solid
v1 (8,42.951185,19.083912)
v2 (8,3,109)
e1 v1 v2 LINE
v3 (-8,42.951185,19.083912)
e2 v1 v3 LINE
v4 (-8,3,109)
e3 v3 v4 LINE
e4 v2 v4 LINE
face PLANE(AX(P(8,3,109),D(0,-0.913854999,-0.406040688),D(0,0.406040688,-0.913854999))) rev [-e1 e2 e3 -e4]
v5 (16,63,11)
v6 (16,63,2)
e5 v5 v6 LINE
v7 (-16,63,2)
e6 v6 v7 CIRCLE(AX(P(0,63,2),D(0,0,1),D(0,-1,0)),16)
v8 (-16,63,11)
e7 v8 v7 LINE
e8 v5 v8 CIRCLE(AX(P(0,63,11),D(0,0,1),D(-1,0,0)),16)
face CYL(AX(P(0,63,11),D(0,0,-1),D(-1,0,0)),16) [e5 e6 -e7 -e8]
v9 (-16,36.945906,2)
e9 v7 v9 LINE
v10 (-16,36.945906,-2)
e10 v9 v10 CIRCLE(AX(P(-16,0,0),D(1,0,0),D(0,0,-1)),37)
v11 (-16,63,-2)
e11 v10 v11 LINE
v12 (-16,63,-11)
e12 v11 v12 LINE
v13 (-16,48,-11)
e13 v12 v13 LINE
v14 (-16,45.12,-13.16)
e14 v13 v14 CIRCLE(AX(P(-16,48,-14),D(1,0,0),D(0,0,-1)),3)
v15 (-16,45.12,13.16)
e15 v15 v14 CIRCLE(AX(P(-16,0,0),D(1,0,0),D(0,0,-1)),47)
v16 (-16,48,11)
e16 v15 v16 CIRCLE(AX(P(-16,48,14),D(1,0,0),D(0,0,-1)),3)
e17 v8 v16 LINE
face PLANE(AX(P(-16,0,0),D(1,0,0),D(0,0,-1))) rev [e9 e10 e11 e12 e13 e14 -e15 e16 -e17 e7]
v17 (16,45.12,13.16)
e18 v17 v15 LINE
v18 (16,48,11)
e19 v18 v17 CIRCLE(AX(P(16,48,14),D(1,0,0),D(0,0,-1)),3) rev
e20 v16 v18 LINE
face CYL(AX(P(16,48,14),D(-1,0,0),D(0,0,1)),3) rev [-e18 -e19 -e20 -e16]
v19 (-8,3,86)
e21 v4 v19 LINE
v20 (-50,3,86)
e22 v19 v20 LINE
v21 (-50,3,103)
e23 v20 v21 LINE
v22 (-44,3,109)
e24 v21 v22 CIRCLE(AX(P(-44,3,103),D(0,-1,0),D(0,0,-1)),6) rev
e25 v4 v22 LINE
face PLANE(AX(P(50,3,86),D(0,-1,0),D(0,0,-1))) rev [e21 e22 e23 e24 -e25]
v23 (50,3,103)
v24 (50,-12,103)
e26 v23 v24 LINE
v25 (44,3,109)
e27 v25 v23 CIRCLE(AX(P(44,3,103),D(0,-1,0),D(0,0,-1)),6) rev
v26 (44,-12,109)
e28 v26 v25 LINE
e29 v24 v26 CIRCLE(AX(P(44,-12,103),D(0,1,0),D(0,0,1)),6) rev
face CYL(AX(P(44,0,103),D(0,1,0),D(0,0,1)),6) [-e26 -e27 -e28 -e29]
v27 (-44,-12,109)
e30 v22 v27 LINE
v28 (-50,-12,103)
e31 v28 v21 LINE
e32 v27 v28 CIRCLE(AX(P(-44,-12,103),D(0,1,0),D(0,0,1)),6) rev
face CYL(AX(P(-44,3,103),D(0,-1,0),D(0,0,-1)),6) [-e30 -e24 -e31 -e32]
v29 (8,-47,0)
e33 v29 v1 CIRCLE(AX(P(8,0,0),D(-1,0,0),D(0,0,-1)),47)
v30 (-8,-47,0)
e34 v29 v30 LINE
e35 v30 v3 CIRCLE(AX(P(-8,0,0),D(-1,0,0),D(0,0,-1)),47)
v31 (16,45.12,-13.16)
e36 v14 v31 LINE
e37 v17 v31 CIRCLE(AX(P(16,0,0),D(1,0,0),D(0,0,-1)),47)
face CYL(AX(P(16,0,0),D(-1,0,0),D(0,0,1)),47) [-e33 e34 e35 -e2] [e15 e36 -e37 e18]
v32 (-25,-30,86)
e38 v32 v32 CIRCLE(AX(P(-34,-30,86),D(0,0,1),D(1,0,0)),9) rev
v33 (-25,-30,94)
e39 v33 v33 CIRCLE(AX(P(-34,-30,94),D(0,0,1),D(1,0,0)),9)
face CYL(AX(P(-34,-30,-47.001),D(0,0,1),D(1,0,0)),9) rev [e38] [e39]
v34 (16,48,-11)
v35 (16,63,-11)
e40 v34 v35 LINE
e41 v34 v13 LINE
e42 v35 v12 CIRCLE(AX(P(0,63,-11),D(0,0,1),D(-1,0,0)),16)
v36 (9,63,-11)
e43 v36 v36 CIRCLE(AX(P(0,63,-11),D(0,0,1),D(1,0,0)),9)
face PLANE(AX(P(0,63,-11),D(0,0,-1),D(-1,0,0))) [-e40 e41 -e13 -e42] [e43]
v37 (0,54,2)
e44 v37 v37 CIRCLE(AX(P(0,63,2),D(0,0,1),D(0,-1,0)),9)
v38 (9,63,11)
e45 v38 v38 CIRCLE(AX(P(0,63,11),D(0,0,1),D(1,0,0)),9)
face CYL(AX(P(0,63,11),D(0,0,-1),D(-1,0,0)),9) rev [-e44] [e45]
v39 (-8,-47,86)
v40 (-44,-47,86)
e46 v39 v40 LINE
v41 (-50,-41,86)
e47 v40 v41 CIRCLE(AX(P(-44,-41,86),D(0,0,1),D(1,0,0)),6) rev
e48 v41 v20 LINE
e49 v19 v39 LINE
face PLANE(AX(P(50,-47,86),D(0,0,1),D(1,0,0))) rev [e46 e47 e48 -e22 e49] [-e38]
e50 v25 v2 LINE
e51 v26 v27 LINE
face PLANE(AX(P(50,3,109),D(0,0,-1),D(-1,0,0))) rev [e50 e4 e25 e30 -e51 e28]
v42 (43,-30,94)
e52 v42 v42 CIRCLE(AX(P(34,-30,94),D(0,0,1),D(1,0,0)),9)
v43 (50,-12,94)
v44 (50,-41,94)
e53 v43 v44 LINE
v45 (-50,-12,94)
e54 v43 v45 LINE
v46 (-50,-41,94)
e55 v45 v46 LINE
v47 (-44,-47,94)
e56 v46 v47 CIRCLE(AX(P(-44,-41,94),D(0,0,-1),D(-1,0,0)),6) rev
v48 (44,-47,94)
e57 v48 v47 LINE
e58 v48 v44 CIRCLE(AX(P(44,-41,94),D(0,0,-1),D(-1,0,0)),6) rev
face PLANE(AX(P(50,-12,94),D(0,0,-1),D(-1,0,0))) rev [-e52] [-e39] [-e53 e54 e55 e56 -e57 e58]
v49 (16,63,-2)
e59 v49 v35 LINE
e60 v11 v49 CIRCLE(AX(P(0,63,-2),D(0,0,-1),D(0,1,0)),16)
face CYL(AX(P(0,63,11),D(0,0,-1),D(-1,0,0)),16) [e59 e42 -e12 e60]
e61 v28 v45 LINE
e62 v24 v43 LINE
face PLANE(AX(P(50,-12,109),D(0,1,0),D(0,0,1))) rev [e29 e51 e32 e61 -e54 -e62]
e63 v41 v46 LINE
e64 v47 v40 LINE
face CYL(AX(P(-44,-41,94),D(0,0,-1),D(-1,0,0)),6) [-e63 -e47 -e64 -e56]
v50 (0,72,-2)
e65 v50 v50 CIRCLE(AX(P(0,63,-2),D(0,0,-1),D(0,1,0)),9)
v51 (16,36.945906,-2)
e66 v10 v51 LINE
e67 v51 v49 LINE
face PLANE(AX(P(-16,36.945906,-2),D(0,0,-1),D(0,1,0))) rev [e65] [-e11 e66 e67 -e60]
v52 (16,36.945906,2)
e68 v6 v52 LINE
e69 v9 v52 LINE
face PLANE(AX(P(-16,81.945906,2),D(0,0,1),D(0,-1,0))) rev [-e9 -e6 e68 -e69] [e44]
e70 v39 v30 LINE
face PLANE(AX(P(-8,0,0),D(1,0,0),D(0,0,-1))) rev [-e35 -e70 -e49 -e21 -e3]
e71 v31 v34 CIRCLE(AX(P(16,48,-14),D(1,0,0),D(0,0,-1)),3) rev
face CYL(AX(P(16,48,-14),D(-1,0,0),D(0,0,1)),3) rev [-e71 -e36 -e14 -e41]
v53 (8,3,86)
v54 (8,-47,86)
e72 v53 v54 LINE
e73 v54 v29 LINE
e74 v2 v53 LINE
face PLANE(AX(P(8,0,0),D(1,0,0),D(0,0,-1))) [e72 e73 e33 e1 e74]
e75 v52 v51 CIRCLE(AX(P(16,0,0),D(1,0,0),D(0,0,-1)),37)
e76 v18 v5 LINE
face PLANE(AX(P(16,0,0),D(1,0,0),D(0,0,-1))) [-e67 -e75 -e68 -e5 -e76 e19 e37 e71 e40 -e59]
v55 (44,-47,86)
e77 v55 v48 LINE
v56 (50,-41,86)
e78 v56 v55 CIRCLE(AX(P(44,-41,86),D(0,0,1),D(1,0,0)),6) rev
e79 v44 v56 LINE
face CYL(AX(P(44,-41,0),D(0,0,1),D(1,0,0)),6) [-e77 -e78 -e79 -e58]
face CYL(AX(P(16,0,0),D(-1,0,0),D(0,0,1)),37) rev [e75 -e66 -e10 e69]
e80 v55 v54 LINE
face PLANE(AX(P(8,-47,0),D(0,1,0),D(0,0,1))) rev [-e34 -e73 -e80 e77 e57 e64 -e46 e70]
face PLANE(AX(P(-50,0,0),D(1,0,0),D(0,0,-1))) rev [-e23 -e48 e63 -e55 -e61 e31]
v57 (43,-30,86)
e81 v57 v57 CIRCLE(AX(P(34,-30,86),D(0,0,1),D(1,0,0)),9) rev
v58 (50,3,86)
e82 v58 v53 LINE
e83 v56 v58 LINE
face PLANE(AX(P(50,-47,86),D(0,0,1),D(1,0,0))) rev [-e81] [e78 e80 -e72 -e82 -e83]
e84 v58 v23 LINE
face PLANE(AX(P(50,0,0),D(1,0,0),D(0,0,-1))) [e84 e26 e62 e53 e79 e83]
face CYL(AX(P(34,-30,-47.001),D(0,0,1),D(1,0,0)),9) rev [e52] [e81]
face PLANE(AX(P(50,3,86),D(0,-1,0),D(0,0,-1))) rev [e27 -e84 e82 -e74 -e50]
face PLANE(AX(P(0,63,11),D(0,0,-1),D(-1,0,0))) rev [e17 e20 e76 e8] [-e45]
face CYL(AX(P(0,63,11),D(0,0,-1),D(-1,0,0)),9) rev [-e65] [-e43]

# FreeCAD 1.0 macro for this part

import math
import FreeCAD as App
import Part
import Sketcher
from FreeCAD import Vector
Q = App.Units.Quantity


def edges_at(feature, points):
    """Names of the edges that pass closest to the given points."""
    edges = feature.Shape.Edges
    near = lambda p: min(range(len(edges)), key=lambda i: edges[i].distToShape(Part.Vertex(*p))[0])
    return sorted({f"Edge{near(p) + 1}" for p in points})

doc = App.newDocument("Part")
body = doc.addObject("PartDesign::Body", "Body")

# Sketch on YZ plane
sketch1 = doc.addObject("Sketcher::SketchObject", "Sketch")
body.addObject(sketch1)
sketch1.AttachmentSupport = (doc.YZ_Plane, [""])
sketch1.MapMode = "FlatFace"
sketch1.addGeometry(Part.Circle(Vector(0, 0, 0), Vector(0, 0, 1), 47), False)
sketch1.addGeometry(Part.Circle(Vector(0, 0, 0), Vector(0, 0, 1), 37), False)
sketch1.addConstraint(Sketcher.Constraint("Coincident", 0, 3, -1, 1))
sketch1.addConstraint(Sketcher.Constraint("Coincident", 1, 3, -1, 1))
sketch1.addConstraint(Sketcher.Constraint("Diameter", 0, Q("94 mm")))
sketch1.addConstraint(Sketcher.Constraint("Diameter", 1, Q("74 mm")))
pad1 = doc.addObject("PartDesign::Pad", "Pad")
body.addObject(pad1)
pad1.Profile = sketch1
pad1.Length = 32
pad1.Midplane = True

# Sketch on XY plane
sketch2 = doc.addObject("Sketcher::SketchObject", "Sketch001")
body.addObject(sketch2)
sketch2.AttachmentSupport = (doc.XY_Plane, [""])
sketch2.MapMode = "FlatFace"
sketch2.addGeometry(Part.LineSegment(Vector(-16, 37, 0), Vector(16, 37, 0)), False)
sketch2.addGeometry(Part.LineSegment(Vector(16, 37, 0), Vector(16, 63, 0)), False)
sketch2.addGeometry(Part.ArcOfCircle(Part.Circle(Vector(0, 63, 0), Vector(0, 0, 1), 16), math.radians(0), math.radians(180)), False)
sketch2.addGeometry(Part.LineSegment(Vector(-16, 63, 0), Vector(-16, 37, 0)), False)
sketch2.addGeometry(Part.Circle(Vector(0, 63, 0), Vector(0, 0, 1), 9), False)
sketch2.addConstraint(Sketcher.Constraint("Coincident", 0, 2, 1, 1))
sketch2.addConstraint(Sketcher.Constraint("Tangent", 1, 2, 2, 1))
sketch2.addConstraint(Sketcher.Constraint("Tangent", 2, 2, 3, 1))
sketch2.addConstraint(Sketcher.Constraint("Coincident", 3, 2, 0, 1))
sketch2.addConstraint(Sketcher.Constraint("Horizontal", 0))
sketch2.addConstraint(Sketcher.Constraint("Vertical", 1))
sketch2.addConstraint(Sketcher.Constraint("Vertical", 3))
sketch2.addConstraint(Sketcher.Constraint("Coincident", 4, 3, 2, 3))
sketch2.addConstraint(Sketcher.Constraint("PointOnObject", 2, 3, -2))
sketch2.addConstraint(Sketcher.Constraint("Diameter", 4, Q("18 mm")))
sketch2.addConstraint(Sketcher.Constraint("Radius", 2, Q("16 mm")))
sketch2.addConstraint(Sketcher.Constraint("DistanceY", 1, 1, 1, 2, Q("26 mm")))
sketch2.addConstraint(Sketcher.Constraint("DistanceY", -1, 1, 2, 3, Q("63 mm")))
pad2 = doc.addObject("PartDesign::Pad", "Pad001")
body.addObject(pad2)
pad2.Profile = sketch2
pad2.Length = 22
pad2.Midplane = True

# Sketch on YZ plane
sketch3 = doc.addObject("Sketcher::SketchObject", "Sketch002")
body.addObject(sketch3)
sketch3.AttachmentSupport = (doc.YZ_Plane, [""])
sketch3.MapMode = "FlatFace"
sketch3.addGeometry(Part.LineSegment(Vector(81.945906, 2, 0), Vector(36.945906, 2, 0)), False)
sketch3.addGeometry(Part.LineSegment(Vector(36.945906, 2, 0), Vector(36.945906, -2, 0)), False)
sketch3.addGeometry(Part.LineSegment(Vector(36.945906, -2, 0), Vector(81.945906, -2, 0)), False)
sketch3.addGeometry(Part.LineSegment(Vector(81.945906, -2, 0), Vector(81.945906, 2, 0)), False)
sketch3.addConstraint(Sketcher.Constraint("Coincident", 0, 2, 1, 1))
sketch3.addConstraint(Sketcher.Constraint("Coincident", 1, 2, 2, 1))
sketch3.addConstraint(Sketcher.Constraint("Coincident", 2, 2, 3, 1))
sketch3.addConstraint(Sketcher.Constraint("Coincident", 3, 2, 0, 1))
sketch3.addConstraint(Sketcher.Constraint("Horizontal", 0))
sketch3.addConstraint(Sketcher.Constraint("Vertical", 1))
sketch3.addConstraint(Sketcher.Constraint("Horizontal", 2))
sketch3.addConstraint(Sketcher.Constraint("Vertical", 3))
sketch3.addConstraint(Sketcher.Constraint("DistanceX", 0, 2, 0, 1, Q("45 mm")))
sketch3.addConstraint(Sketcher.Constraint("DistanceY", 1, 2, 1, 1, Q("4 mm")))
sketch3.addConstraint(Sketcher.Constraint("DistanceY", -1, 1, 0, 2, Q("2 mm")))
sketch3.addConstraint(Sketcher.Constraint("DistanceX", -1, 1, 0, 2, Q("36.945906 mm")))
pocket1 = doc.addObject("PartDesign::Pocket", "Pocket")
body.addObject(pocket1)
pocket1.Profile = sketch3
pocket1.Length = 32
pocket1.Midplane = True
doc.recompute()

fillet = doc.addObject("PartDesign::Fillet", "Fillet")
body.addObject(fillet)
fillet.Base = (pocket1, edges_at(pocket1, [(0, 45.695, -11), (0, 45.695, 11)]))
fillet.Radius = 3
body2 = doc.addObject("PartDesign::Body", "Body001")

# Sketch on YZ plane
sketch4 = doc.addObject("Sketcher::SketchObject", "Sketch003")
body2.addObject(sketch4)
sketch4.AttachmentSupport = (doc.getObject("YZ_Plane001"), [""])
sketch4.MapMode = "FlatFace"
sketch4.addGeometry(Part.LineSegment(Vector(-47, 94, 0), Vector(-47, 86, 0)), False)
sketch4.addGeometry(Part.LineSegment(Vector(-47, 86, 0), Vector(3, 86, 0)), False)
sketch4.addGeometry(Part.LineSegment(Vector(3, 86, 0), Vector(3, 109, 0)), False)
sketch4.addGeometry(Part.LineSegment(Vector(3, 109, 0), Vector(-12, 109, 0)), False)
sketch4.addGeometry(Part.LineSegment(Vector(-12, 109, 0), Vector(-12, 94, 0)), False)
sketch4.addGeometry(Part.LineSegment(Vector(-12, 94, 0), Vector(-47, 94, 0)), False)
sketch4.addConstraint(Sketcher.Constraint("Coincident", 0, 2, 1, 1))
sketch4.addConstraint(Sketcher.Constraint("Coincident", 1, 2, 2, 1))
sketch4.addConstraint(Sketcher.Constraint("Coincident", 2, 2, 3, 1))
sketch4.addConstraint(Sketcher.Constraint("Coincident", 3, 2, 4, 1))
sketch4.addConstraint(Sketcher.Constraint("Coincident", 4, 2, 5, 1))
sketch4.addConstraint(Sketcher.Constraint("Coincident", 5, 2, 0, 1))
sketch4.addConstraint(Sketcher.Constraint("Vertical", 0))
sketch4.addConstraint(Sketcher.Constraint("Horizontal", 1))
sketch4.addConstraint(Sketcher.Constraint("Vertical", 2))
sketch4.addConstraint(Sketcher.Constraint("Horizontal", 3))
sketch4.addConstraint(Sketcher.Constraint("Vertical", 4))
sketch4.addConstraint(Sketcher.Constraint("Horizontal", 5))
sketch4.addConstraint(Sketcher.Constraint("Equal", 3, 4))
sketch4.addConstraint(Sketcher.Constraint("DistanceX", 1, 1, 1, 2, Q("50 mm")))
sketch4.addConstraint(Sketcher.Constraint("DistanceX", 3, 2, 3, 1, Q("15 mm")))
sketch4.addConstraint(Sketcher.Constraint("DistanceY", 0, 2, 0, 1, Q("8 mm")))
sketch4.addConstraint(Sketcher.Constraint("DistanceX", 0, 2, -1, 1, Q("47 mm")))
sketch4.addConstraint(Sketcher.Constraint("DistanceY", -1, 1, 0, 2, Q("86 mm")))
pad3 = doc.addObject("PartDesign::Pad", "Pad002")
body2.addObject(pad3)
pad3.Profile = sketch4
pad3.Length = 100
pad3.Midplane = True

# Sketch on XY plane
sketch5 = doc.addObject("Sketcher::SketchObject", "Sketch004")
body2.addObject(sketch5)
sketch5.AttachmentSupport = (doc.getObject("XY_Plane001"), [""])
sketch5.MapMode = "FlatFace"
sketch5.AttachmentOffset = App.Placement(Vector(0, 0, 94), App.Rotation())
sketch5.addGeometry(Part.Circle(Vector(-34, -30, 0), Vector(0, 0, 1), 9), False)
sketch5.addGeometry(Part.Circle(Vector(34, -30, 0), Vector(0, 0, 1), 9), False)
sketch5.addConstraint(Sketcher.Constraint("Equal", 0, 1))
sketch5.addConstraint(Sketcher.Constraint("Symmetric", 0, 3, 1, 3, -2))
sketch5.addConstraint(Sketcher.Constraint("Diameter", 0, Q("18 mm")))
sketch5.addConstraint(Sketcher.Constraint("DistanceX", 0, 3, -1, 1, Q("34 mm")))
sketch5.addConstraint(Sketcher.Constraint("DistanceY", 0, 3, -1, 1, Q("30 mm")))
pocket2 = doc.addObject("PartDesign::Pocket", "Pocket001")
body2.addObject(pocket2)
pocket2.Profile = sketch5
pocket2.Length = 8
doc.recompute()

fillet2 = doc.addObject("PartDesign::Fillet", "Fillet001")
body2.addObject(fillet2)
fillet2.Base = (pocket2, edges_at(pocket2, [
    (50, -4.5, 109),
    (-50, -4.5, 109),
    (50, -47, 90),
    (-50, -47, 90),
]))
fillet2.Radius = 6
body.AllowCompound = True
doc.recompute()

boolean = doc.addObject("PartDesign::Boolean", "Boolean")
body.addObject(boolean)
boolean.Type = "Fuse"
boolean.addObjects([body2])

# Sketch on YZ plane
sketch6 = doc.addObject("Sketcher::SketchObject", "Sketch005")
body.addObject(sketch6)
sketch6.AttachmentSupport = (doc.YZ_Plane, [""])
sketch6.MapMode = "FlatFace"
sketch6.addGeometry(Part.LineSegment(Vector(42.951185, 19.083912, 0), Vector(3, 109, 0)), False)
sketch6.addGeometry(Part.LineSegment(Vector(3, 109, 0), Vector(3, 86, 0)), False)
sketch6.addGeometry(Part.LineSegment(Vector(3, 86, 0), Vector(-47, 86, 0)), False)
sketch6.addGeometry(Part.LineSegment(Vector(-47, 86, 0), Vector(-47, 0, 0)), False)
sketch6.addGeometry(Part.ArcOfCircle(Part.Circle(Vector(0, 0, 0), Vector(0, 0, 1), 47), math.radians(23.956358), math.radians(180)), False)
sketch6.addConstraint(Sketcher.Constraint("Coincident", 0, 2, 1, 1))
sketch6.addConstraint(Sketcher.Constraint("Coincident", 1, 2, 2, 1))
sketch6.addConstraint(Sketcher.Constraint("Coincident", 2, 2, 3, 1))
sketch6.addConstraint(Sketcher.Constraint("Tangent", 3, 2, 4, 2))
sketch6.addConstraint(Sketcher.Constraint("Tangent", 4, 1, 0, 1))
sketch6.addConstraint(Sketcher.Constraint("Vertical", 1))
sketch6.addConstraint(Sketcher.Constraint("Horizontal", 2))
sketch6.addConstraint(Sketcher.Constraint("Vertical", 3))
sketch6.addConstraint(Sketcher.Constraint("Coincident", 4, 3, -1, 1))
sketch6.addConstraint(Sketcher.Constraint("Radius", 4, Q("47 mm")))
sketch6.addConstraint(Sketcher.Constraint("DistanceX", 2, 2, 2, 1, Q("50 mm")))
sketch6.addConstraint(Sketcher.Constraint("DistanceY", 1, 2, 1, 1, Q("23 mm")))
sketch6.addConstraint(Sketcher.Constraint("DistanceY", 3, 2, 3, 1, Q("86 mm")))
pad4 = doc.addObject("PartDesign::Pad", "Pad003")
body.addObject(pad4)
pad4.Profile = sketch6
pad4.Length = 16
pad4.Midplane = True

doc.recompute()
